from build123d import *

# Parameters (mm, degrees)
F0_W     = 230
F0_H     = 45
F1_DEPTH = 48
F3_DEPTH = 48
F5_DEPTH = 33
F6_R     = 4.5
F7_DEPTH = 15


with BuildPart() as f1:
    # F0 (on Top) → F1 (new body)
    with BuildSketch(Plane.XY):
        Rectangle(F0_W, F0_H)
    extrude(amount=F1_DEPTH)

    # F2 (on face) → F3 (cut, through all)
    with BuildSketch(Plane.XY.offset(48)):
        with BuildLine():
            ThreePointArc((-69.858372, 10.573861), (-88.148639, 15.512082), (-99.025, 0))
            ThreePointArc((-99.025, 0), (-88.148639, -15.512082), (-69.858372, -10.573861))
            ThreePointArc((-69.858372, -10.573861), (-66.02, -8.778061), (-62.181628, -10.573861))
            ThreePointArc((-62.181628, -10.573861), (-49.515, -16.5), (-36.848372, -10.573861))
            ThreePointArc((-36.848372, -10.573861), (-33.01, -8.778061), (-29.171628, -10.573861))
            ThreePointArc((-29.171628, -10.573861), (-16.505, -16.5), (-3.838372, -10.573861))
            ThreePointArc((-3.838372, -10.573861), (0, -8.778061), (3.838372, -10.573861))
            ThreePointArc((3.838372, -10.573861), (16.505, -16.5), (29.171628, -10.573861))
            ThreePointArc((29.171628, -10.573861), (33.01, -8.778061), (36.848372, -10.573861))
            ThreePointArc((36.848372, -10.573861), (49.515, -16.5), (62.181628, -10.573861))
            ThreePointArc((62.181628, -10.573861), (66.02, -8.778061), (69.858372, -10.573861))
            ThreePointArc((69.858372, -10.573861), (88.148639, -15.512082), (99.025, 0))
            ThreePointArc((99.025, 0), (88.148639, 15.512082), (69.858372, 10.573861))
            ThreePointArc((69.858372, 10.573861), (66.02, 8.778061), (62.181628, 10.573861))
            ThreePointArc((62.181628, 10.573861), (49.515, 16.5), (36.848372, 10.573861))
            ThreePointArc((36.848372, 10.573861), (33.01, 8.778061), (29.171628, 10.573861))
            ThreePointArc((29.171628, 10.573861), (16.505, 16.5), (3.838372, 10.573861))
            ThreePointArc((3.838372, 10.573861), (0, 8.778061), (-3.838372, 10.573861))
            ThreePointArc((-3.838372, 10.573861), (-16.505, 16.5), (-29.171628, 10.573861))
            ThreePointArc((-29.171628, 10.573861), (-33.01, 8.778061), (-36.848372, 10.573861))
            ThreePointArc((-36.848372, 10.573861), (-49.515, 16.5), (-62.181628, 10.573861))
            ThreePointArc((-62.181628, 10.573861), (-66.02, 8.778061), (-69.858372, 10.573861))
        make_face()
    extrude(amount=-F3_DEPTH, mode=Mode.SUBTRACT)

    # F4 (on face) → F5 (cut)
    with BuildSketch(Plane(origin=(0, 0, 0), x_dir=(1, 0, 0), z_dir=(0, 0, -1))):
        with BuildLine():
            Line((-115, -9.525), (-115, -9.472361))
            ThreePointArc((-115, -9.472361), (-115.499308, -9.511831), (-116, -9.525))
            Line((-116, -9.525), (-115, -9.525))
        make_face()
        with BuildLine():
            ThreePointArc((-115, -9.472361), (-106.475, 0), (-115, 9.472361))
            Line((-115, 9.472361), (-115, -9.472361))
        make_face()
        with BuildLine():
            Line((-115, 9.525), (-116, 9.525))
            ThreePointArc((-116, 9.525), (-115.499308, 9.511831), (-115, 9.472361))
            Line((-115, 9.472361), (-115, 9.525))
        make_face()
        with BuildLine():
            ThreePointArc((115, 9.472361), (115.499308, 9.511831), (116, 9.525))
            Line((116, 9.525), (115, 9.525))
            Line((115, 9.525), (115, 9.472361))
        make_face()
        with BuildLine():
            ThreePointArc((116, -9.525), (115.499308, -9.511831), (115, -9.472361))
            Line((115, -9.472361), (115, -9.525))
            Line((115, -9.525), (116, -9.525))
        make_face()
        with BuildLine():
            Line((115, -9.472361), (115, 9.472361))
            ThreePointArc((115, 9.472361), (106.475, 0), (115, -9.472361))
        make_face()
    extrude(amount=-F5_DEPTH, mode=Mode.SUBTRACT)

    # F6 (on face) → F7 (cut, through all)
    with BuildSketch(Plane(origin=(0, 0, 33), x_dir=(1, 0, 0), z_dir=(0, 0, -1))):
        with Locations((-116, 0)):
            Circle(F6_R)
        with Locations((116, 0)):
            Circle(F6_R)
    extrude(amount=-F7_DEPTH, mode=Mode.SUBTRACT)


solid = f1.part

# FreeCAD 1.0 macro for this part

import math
import FreeCAD as App
import Part
import Sketcher

V = App.Vector

doc = App.newDocument("Part")
params = doc.addObject("Spreadsheet::Sheet", "Params")
for row, (alias, value) in enumerate([
    ("sketch1_width", "230 mm"),
    ("sketch1_height", "45 mm"),
    ("pad1_length", "48 mm"),
    ("sketch2_radius", "4.999999 mm"),
    ("sketch2_radius2", "16.5 mm"),
    ("sketch3_width", "1 mm"),
    ("pocket2_length", "33 mm"),
    ("sketch4_diameter", "9 mm"),
], start=1):
    params.set(f"A{row}", alias)
    params.set(f"B{row}", "=" + value)
    params.setAlias(f"B{row}", alias)

body = doc.addObject("PartDesign::Body", "Body")

sketch1 = body.newObject("Sketcher::SketchObject", "Sketch")
sketch1.AttachmentSupport = (doc.getObject("XY_Plane"), [""])
sketch1.MapMode = "FlatFace"
sketch1.addGeometry(Part.LineSegment(V(-115, 22, 0), V(-115, -22, 0)), False)
sketch1.addGeometry(Part.LineSegment(V(-115, -22, 0), V(115, -22, 0)), False)
sketch1.addGeometry(Part.LineSegment(V(115, -22, 0), V(115, 22, 0)), False)
sketch1.addGeometry(Part.LineSegment(V(115, 22, 0), V(-115, 22, 0)), False)
sketch1.addConstraint(Sketcher.Constraint("Coincident", 0, 2, 1, 1))
sketch1.addConstraint(Sketcher.Constraint("Coincident", 1, 2, 2, 1))
sketch1.addConstraint(Sketcher.Constraint("Coincident", 2, 2, 3, 1))
sketch1.addConstraint(Sketcher.Constraint("Coincident", 3, 2, 0, 1))
sketch1.addConstraint(Sketcher.Constraint("Vertical", 0))
sketch1.addConstraint(Sketcher.Constraint("Horizontal", 1))
sketch1.addConstraint(Sketcher.Constraint("Vertical", 2))
sketch1.addConstraint(Sketcher.Constraint("Horizontal", 3))
sketch1.addConstraint(Sketcher.Constraint("Symmetric", 0, 2, 2, 2, -1, 1))
sketch1.addConstraint(Sketcher.Constraint("DistanceX", 1, 1, 1, 2, 230.0))
sketch1.addConstraint(Sketcher.Constraint("DistanceY", 0, 2, 0, 1, 45.0))
sketch1.setExpression("Constraints[9]", "Params.sketch1_width")
sketch1.setExpression("Constraints[10]", "Params.sketch1_height")
pad1 = body.newObject("PartDesign::Pad", "Pad")
pad1.Profile = sketch1
pad1.setExpression("Length", "Params.pad1_length")

sketch2 = body.newObject("Sketcher::SketchObject", "Sketch001")
sketch2.AttachmentSupport = (doc.getObject("XY_Plane"), [""])
sketch2.MapMode = "FlatFace"
sketch2.AttachmentOffset = App.Placement(V(0, 0, 48), App.Rotation())
sketch2.addGeometry(Part.ArcOfCircle(Part.Circle(V(-82.5, 0, 0), V(0, 0, 1), 16.5), math.radians(40), math.radians(180)), False)
sketch2.addGeometry(Part.ArcOfCircle(Part.Circle(V(-82.5, 0, 0), V(0, 0, 1), 16.5), math.radians(180), math.radians(320)), False)
sketch2.addGeometry(Part.ArcOfCircle(Part.Circle(V(-66, -13.8, 0), V(0, 0, 1), 5), math.radians(40), math.radians(140)), False)
sketch2.addGeometry(Part.ArcOfCircle(Part.Circle(V(-49.5, 0, 0), V(0, 0, 1), 16.5), math.radians(-140), math.radians(-40)), False)
sketch2.addGeometry(Part.ArcOfCircle(Part.Circle(V(-33, -13.8, 0), V(0, 0, 1), 5), math.radians(40), math.radians(140)), False)
sketch2.addGeometry(Part.ArcOfCircle(Part.Circle(V(-16.5, 0, 0), V(0, 0, 1), 16.5), math.radians(-140), math.radians(-40)), False)
sketch2.addGeometry(Part.ArcOfCircle(Part.Circle(V(0, -13.8, 0), V(0, 0, 1), 5), math.radians(40), math.radians(140)), False)
sketch2.addGeometry(Part.ArcOfCircle(Part.Circle(V(16.5, 0, 0), V(0, 0, 1), 16.5), math.radians(-140), math.radians(-40)), False)
sketch2.addGeometry(Part.ArcOfCircle(Part.Circle(V(33, -13.8, 0), V(0, 0, 1), 5), math.radians(40), math.radians(140)), False)
sketch2.addGeometry(Part.ArcOfCircle(Part.Circle(V(49.5, 0, 0), V(0, 0, 1), 16.5), math.radians(-140), math.radians(-40)), False)
sketch2.addGeometry(Part.ArcOfCircle(Part.Circle(V(66, -13.8, 0), V(0, 0, 1), 5), math.radians(40), math.radians(140)), False)
sketch2.addGeometry(Part.ArcOfCircle(Part.Circle(V(82.5, 0, 0), V(0, 0, 1), 16.5), math.radians(-140), math.radians(0)), False)
sketch2.addGeometry(Part.ArcOfCircle(Part.Circle(V(82.5, 0, 0), V(0, 0, 1), 16.5), math.radians(0), math.radians(140)), False)
sketch2.addGeometry(Part.ArcOfCircle(Part.Circle(V(66, 13.8, 0), V(0, 0, 1), 5), math.radians(-140), math.radians(-40)), False)
sketch2.addGeometry(Part.ArcOfCircle(Part.Circle(V(49.5, 0, 0), V(0, 0, 1), 16.5), math.radians(40), math.radians(140)), False)
sketch2.addGeometry(Part.ArcOfCircle(Part.Circle(V(33, 13.8, 0), V(0, 0, 1), 5), math.radians(-140), math.radians(-40)), False)
sketch2.addGeometry(Part.ArcOfCircle(Part.Circle(V(16.5, 0, 0), V(0, 0, 1), 16.5), math.radians(40), math.radians(140)), False)
sketch2.addGeometry(Part.ArcOfCircle(Part.Circle(V(0, 13.8, 0), V(0, 0, 1), 5), math.radians(-140), math.radians(-40)), False)
sketch2.addGeometry(Part.ArcOfCircle(Part.Circle(V(-16.5, 0, 0), V(0, 0, 1), 16.5), math.radians(40), math.radians(140)), False)
sketch2.addGeometry(Part.ArcOfCircle(Part.Circle(V(-33, 13.8, 0), V(0, 0, 1), 5), math.radians(-140), math.radians(-40)), False)
sketch2.addGeometry(Part.ArcOfCircle(Part.Circle(V(-49.5, 0, 0), V(0, 0, 1), 16.5), math.radians(40), math.radians(140)), False)
sketch2.addGeometry(Part.ArcOfCircle(Part.Circle(V(-66, 13.8, 0), V(0, 0, 1), 5), math.radians(-140), math.radians(-40)), False)
sketch2.addConstraint(Sketcher.Constraint("Tangent", 0, 2, 1, 1))
sketch2.addConstraint(Sketcher.Constraint("Tangent", 1, 2, 2, 2))
sketch2.addConstraint(Sketcher.Constraint("Tangent", 2, 1, 3, 1))
sketch2.addConstraint(Sketcher.Constraint("Tangent", 3, 2, 4, 2))
sketch2.addConstraint(Sketcher.Constraint("Tangent", 4, 1, 5, 1))
sketch2.addConstraint(Sketcher.Constraint("Tangent", 5, 2, 6, 2))
sketch2.addConstraint(Sketcher.Constraint("Tangent", 6, 1, 7, 1))
sketch2.addConstraint(Sketcher.Constraint("Tangent", 7, 2, 8, 2))
sketch2.addConstraint(Sketcher.Constraint("Tangent", 8, 1, 9, 1))
sketch2.addConstraint(Sketcher.Constraint("Tangent", 9, 2, 10, 2))
sketch2.addConstraint(Sketcher.Constraint("Tangent", 10, 1, 11, 1))
sketch2.addConstraint(Sketcher.Constraint("Tangent", 11, 2, 12, 1))
sketch2.addConstraint(Sketcher.Constraint("Tangent", 12, 2, 13, 2))
sketch2.addConstraint(Sketcher.Constraint("Tangent", 13, 1, 14, 1))
sketch2.addConstraint(Sketcher.Constraint("Tangent", 14, 2, 15, 2))
sketch2.addConstraint(Sketcher.Constraint("Tangent", 15, 1, 16, 1))
sketch2.addConstraint(Sketcher.Constraint("Tangent", 16, 2, 17, 2))
sketch2.addConstraint(Sketcher.Constraint("Tangent", 17, 1, 18, 1))
sketch2.addConstraint(Sketcher.Constraint("Tangent", 18, 2, 19, 2))
sketch2.addConstraint(Sketcher.Constraint("Tangent", 19, 1, 20, 1))
sketch2.addConstraint(Sketcher.Constraint("Tangent", 20, 2, 21, 2))
sketch2.addConstraint(Sketcher.Constraint("Tangent", 21, 1, 0, 1))
sketch2.addConstraint(Sketcher.Constraint("Coincident", 14, 3, 9, 3))
sketch2.addConstraint(Sketcher.Constraint("Coincident", 16, 3, 7, 3))
sketch2.addConstraint(Sketcher.Constraint("Coincident", 18, 3, 5, 3))
sketch2.addConstraint(Sketcher.Constraint("Coincident", 20, 3, 3, 3))
sketch2.addConstraint(Sketcher.Constraint("Equal", 0, 1))
sketch2.addConstraint(Sketcher.Constraint("Equal", 1, 3))
sketch2.addConstraint(Sketcher.Constraint("Equal", 2, 4))
sketch2.addConstraint(Sketcher.Constraint("Equal", 3, 5))
sketch2.addConstraint(Sketcher.Constraint("Equal", 4, 6))
sketch2.addConstraint(Sketcher.Constraint("Equal", 5, 7))
sketch2.addConstraint(Sketcher.Constraint("Equal", 6, 8))
sketch2.addConstraint(Sketcher.Constraint("Equal", 7, 9))
sketch2.addConstraint(Sketcher.Constraint("Equal", 8, 10))
sketch2.addConstraint(Sketcher.Constraint("Equal", 9, 11))
sketch2.addConstraint(Sketcher.Constraint("Equal", 11, 12))
sketch2.addConstraint(Sketcher.Constraint("Equal", 10, 13))
sketch2.addConstraint(Sketcher.Constraint("Equal", 12, 14))
sketch2.addConstraint(Sketcher.Constraint("Equal", 13, 15))
sketch2.addConstraint(Sketcher.Constraint("Equal", 14, 16))
sketch2.addConstraint(Sketcher.Constraint("Equal", 15, 17))
sketch2.addConstraint(Sketcher.Constraint("Equal", 16, 18))
sketch2.addConstraint(Sketcher.Constraint("Equal", 17, 19))
sketch2.addConstraint(Sketcher.Constraint("Equal", 18, 20))
sketch2.addConstraint(Sketcher.Constraint("Equal", 19, 21))
sketch2.addConstraint(Sketcher.Constraint("Symmetric", 5, 3, 7, 3, -1, 1))
sketch2.addConstraint(Sketcher.Constraint("Symmetric", 3, 3, 9, 3, -1, 1))
sketch2.addConstraint(Sketcher.Constraint("Symmetric", 0, 3, 11, 3, -1, 1))
sketch2.addConstraint(Sketcher.Constraint("Symmetric", 4, 3, 8, 3, -2))
sketch2.addConstraint(Sketcher.Constraint("PointOnObject", 0, 3, -1))
sketch2.addConstraint(Sketcher.Constraint("PointOnObject", 0, 2, -1))
sketch2.addConstraint(Sketcher.Constraint("PointOnObject", 11, 2, -1))
sketch2.addConstraint(Sketcher.Constraint("Horizontal", 2, 3, 4, 3))
sketch2.addConstraint(Sketcher.Constraint("Horizontal", 4, 3, 6, 3))
sketch2.addConstraint(Sketcher.Constraint("Radius", 2, 4.999999))
sketch2.addConstraint(Sketcher.Constraint("Radius", 0, 16.5))
sketch2.addConstraint(Sketcher.Constraint("DistanceX", 2, 3, -1, 1, 66.02))
sketch2.setExpression("Constraints[55]", "Params.sketch2_radius")
sketch2.setExpression("Constraints[56]", "Params.sketch2_radius2")
pocket1 = body.newObject("PartDesign::Pocket", "Pocket")
pocket1.Profile = sketch2
pocket1.Type = "ThroughAll"

sketch3 = body.newObject("Sketcher::SketchObject", "Sketch002")
sketch3.AttachmentSupport = (doc.getObject("XY_Plane"), [""])
sketch3.MapMode = "FlatFace"
sketch3.addGeometry(Part.LineSegment(V(-115, 9.53, 0), V(-115, 9.47, 0)), False)
sketch3.addGeometry(Part.ArcOfCircle(Part.Circle(V(-116, 0, 0), V(0, 0, 1), 9.53), math.radians(83.97), math.radians(90)), False)
sketch3.addGeometry(Part.LineSegment(V(-116, 9.53, 0), V(-115, 9.53, 0)), False)
sketch3.addGeometry(Part.ArcOfCircle(Part.Circle(V(-116, 0, 0), V(0, 0, 1), 9.52), math.radians(-84), math.radians(84)), False)
sketch3.addGeometry(Part.LineSegment(V(-115, -9.47, 0), V(-115, 9.47, 0)), False)
sketch3.addGeometry(Part.LineSegment(V(-115, -9.53, 0), V(-116, -9.53, 0)), False)
sketch3.addGeometry(Part.ArcOfCircle(Part.Circle(V(-116, 0, 0), V(0, 0, 1), 9.53), math.radians(-90), math.radians(-83.97)), False)
sketch3.addGeometry(Part.LineSegment(V(-115, -9.47, 0), V(-115, -9.53, 0)), False)
sketch3.addGeometry(Part.ArcOfCircle(Part.Circle(V(116, 0, 0), V(0, 0, 1), 9.53), math.radians(-96.03), math.radians(-90)), False)
sketch3.addGeometry(Part.LineSegment(V(116, -9.53, 0), V(115, -9.53, 0)), False)
sketch3.addGeometry(Part.LineSegment(V(115, -9.53, 0), V(115, -9.47, 0)), False)
sketch3.addGeometry(Part.ArcOfCircle(Part.Circle(V(116, 0, 0), V(0, 0, 1), 9.53), math.radians(90), math.radians(96.03)), False)
sketch3.addGeometry(Part.LineSegment(V(115, 9.47, 0), V(115, 9.53, 0)), False)
sketch3.addGeometry(Part.LineSegment(V(115, 9.53, 0), V(116, 9.53, 0)), False)
sketch3.addGeometry(Part.LineSegment(V(115, 9.47, 0), V(115, -9.47, 0)), False)
sketch3.addGeometry(Part.ArcOfCircle(Part.Circle(V(116, 0, 0), V(0, 0, 1), 9.52), math.radians(96), math.radians(264)), False)
sketch3.addConstraint(Sketcher.Constraint("Coincident", 0, 2, 1, 1))
sketch3.addConstraint(Sketcher.Constraint("Tangent", 1, 2, 2, 1))
sketch3.addConstraint(Sketcher.Constraint("Coincident", 2, 2, 0, 1))
sketch3.addConstraint(Sketcher.Constraint("Coincident", 3, 1, 4, 1))
sketch3.addConstraint(Sketcher.Constraint("Coincident", 4, 2, 3, 2))
sketch3.addConstraint(Sketcher.Constraint("Tangent", 5, 2, 6, 1))
sketch3.addConstraint(Sketcher.Constraint("Coincident", 6, 2, 7, 1))
sketch3.addConstraint(Sketcher.Constraint("Coincident", 7, 2, 5, 1))
sketch3.addConstraint(Sketcher.Constraint("Tangent", 8, 2, 9, 1))
sketch3.addConstraint(Sketcher.Constraint("Coincident", 9, 2, 10, 1))
sketch3.addConstraint(Sketcher.Constraint("Coincident", 10, 2, 8, 1))
sketch3.addConstraint(Sketcher.Constraint("Coincident", 11, 2, 12, 1))
sketch3.addConstraint(Sketcher.Constraint("Coincident", 12, 2, 13, 1))
sketch3.addConstraint(Sketcher.Constraint("Tangent", 13, 2, 11, 1))
sketch3.addConstraint(Sketcher.Constraint("Coincident", 14, 1, 15, 1))
sketch3.addConstraint(Sketcher.Constraint("Coincident", 15, 2, 14, 2))
sketch3.addConstraint(Sketcher.Constraint("Vertical", 0))
sketch3.addConstraint(Sketcher.Constraint("Horizontal", 2))
sketch3.addConstraint(Sketcher.Constraint("Vertical", 4))
sketch3.addConstraint(Sketcher.Constraint("Horizontal", 5))
sketch3.addConstraint(Sketcher.Constraint("Vertical", 7))
sketch3.addConstraint(Sketcher.Constraint("Horizontal", 9))
sketch3.addConstraint(Sketcher.Constraint("Vertical", 10))
sketch3.addConstraint(Sketcher.Constraint("Vertical", 12))
sketch3.addConstraint(Sketcher.Constraint("Horizontal", 13))
sketch3.addConstraint(Sketcher.Constraint("Vertical", 14))
sketch3.addConstraint(Sketcher.Constraint("Coincident", 4, 2, 0, 2))
sketch3.addConstraint(Sketcher.Constraint("Coincident", 6, 2, 3, 1))
sketch3.addConstraint(Sketcher.Constraint("Coincident", 14, 1, 11, 2))
sketch3.addConstraint(Sketcher.Constraint("Coincident", 15, 2, 10, 2))
sketch3.addConstraint(Sketcher.Constraint("Equal", 1, 6))
sketch3.addConstraint(Sketcher.Constraint("Equal", 6, 8))
sketch3.addConstraint(Sketcher.Constraint("Equal", 8, 11))
sketch3.addConstraint(Sketcher.Constraint("Equal", 3, 15))
sketch3.addConstraint(Sketcher.Constraint("Symmetric", 1, 3, 8, 3, -1, 1))
sketch3.addConstraint(Sketcher.Constraint("Symmetric", 6, 3, 11, 3, -1, 1))
sketch3.addConstraint(Sketcher.Constraint("Symmetric", 6, 3, 8, 3, -2))
sketch3.addConstraint(Sketcher.Constraint("Horizontal", 6, 2, 10, 2))
sketch3.addConstraint(Sketcher.Constraint("Vertical", 3, 3, 1, 2))
sketch3.addConstraint(Sketcher.Constraint("DistanceX", 2, 1, 2, 2, 1.0))
sketch3.addConstraint(Sketcher.Constraint("DistanceX", 3, 3, -1, 1, 116.0))
sketch3.addConstraint(Sketcher.Constraint("Radius", 3, 9.525))
sketch3.addConstraint(Sketcher.Constraint("Radius", 1, 9.525095))
sketch3.setExpression("Constraints[39]", "Params.sketch3_width")
pocket2 = body.newObject("PartDesign::Pocket", "Pocket001")
pocket2.Profile = sketch3
pocket2.setExpression("Length", "Params.pocket2_length")
pocket2.Reversed = True

sketch4 = body.newObject("Sketcher::SketchObject", "Sketch003")
sketch4.AttachmentSupport = (doc.getObject("XY_Plane"), [""])
sketch4.MapMode = "FlatFace"
sketch4.AttachmentOffset = App.Placement(V(0, 0, 33), App.Rotation())
sketch4.addGeometry(Part.Circle(V(-116, 0, 0), V(0, 0, 1), 4.5), False)
sketch4.addGeometry(Part.Circle(V(116, 0, 0), V(0, 0, 1), 4.5), False)
sketch4.addConstraint(Sketcher.Constraint("Equal", 0, 1))
sketch4.addConstraint(Sketcher.Constraint("Symmetric", 0, 3, 1, 3, -1, 1))
sketch4.addConstraint(Sketcher.Constraint("PointOnObject", 0, 3, -1))
sketch4.addConstraint(Sketcher.Constraint("Diameter", 0, 9.0))
sketch4.addConstraint(Sketcher.Constraint("DistanceX", 0, 3, -1, 1, 116.0))
sketch4.setExpression("Constraints[3]", "Params.sketch4_diameter")
pocket3 = body.newObject("PartDesign::Pocket", "Pocket002")
pocket3.Profile = sketch4
pocket3.Type = "ThroughAll"
pocket3.Reversed = True

doc.recompute()
